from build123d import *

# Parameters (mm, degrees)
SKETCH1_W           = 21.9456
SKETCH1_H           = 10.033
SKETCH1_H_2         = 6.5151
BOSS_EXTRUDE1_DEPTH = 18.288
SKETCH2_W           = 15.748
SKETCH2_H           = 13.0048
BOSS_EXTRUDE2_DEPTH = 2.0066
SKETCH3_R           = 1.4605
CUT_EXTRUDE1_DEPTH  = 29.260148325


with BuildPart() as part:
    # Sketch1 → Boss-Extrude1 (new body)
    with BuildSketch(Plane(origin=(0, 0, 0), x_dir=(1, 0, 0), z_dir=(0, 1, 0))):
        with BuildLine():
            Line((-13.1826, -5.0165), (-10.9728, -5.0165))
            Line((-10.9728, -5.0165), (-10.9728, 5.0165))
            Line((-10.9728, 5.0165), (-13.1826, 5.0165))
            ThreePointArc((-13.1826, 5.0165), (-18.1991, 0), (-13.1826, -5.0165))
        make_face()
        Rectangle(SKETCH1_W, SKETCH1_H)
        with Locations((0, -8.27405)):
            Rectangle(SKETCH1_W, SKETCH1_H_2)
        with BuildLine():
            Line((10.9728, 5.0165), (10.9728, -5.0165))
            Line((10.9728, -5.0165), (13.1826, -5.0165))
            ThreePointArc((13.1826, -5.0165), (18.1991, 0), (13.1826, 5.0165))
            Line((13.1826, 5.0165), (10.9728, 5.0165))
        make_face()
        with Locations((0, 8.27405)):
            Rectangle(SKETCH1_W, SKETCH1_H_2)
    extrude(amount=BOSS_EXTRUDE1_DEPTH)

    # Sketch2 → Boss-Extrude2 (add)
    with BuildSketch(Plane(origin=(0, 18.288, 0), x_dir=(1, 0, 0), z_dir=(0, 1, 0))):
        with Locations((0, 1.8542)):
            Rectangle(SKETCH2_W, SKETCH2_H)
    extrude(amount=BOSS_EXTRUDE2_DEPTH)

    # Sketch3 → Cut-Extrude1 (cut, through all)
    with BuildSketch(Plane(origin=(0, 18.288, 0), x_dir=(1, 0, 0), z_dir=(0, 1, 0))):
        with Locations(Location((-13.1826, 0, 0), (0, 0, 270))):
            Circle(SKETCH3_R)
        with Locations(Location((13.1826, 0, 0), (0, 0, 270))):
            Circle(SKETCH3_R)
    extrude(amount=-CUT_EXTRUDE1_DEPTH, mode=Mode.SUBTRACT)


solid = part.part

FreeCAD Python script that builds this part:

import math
import FreeCAD as App
import Part
import Sketcher
from FreeCAD import Vector
Q = App.Units.Quantity

doc = App.newDocument("Part")
body = doc.addObject("PartDesign::Body", "Body")

# Sketch on XZ plane
sketch1 = body.newObject("Sketcher::SketchObject", "Sketch")
sketch1.AttachmentSupport = (doc.getObject("XZ_Plane"), [""])
sketch1.MapMode = "FlatFace"
sketch1.addGeometry([
    Part.LineSegment(Vector(-13.2, 5, 0), Vector(-11, 5, 0)),  # 0
    Part.LineSegment(Vector(-11, 5, 0), Vector(-11, 11.5, 0)),  # 1
    Part.LineSegment(Vector(-11, 11.5, 0), Vector(11, 11.5, 0)),  # 2
    Part.LineSegment(Vector(11, 11.5, 0), Vector(11, 5, 0)),  # 3
    Part.LineSegment(Vector(11, 5, 0), Vector(13.2, 5, 0)),  # 4
    Part.ArcOfCircle(Part.Circle(Vector(13.2, 0, 0), Vector(0, 0, 1), 5), math.radians(-90), math.radians(90)),  # 5
    Part.LineSegment(Vector(13.2, -5, 0), Vector(11, -5, 0)),  # 6
    Part.LineSegment(Vector(11, -5, 0), Vector(11, -11.5, 0)),  # 7
    Part.LineSegment(Vector(11, -11.5, 0), Vector(-11, -11.5, 0)),  # 8
    Part.LineSegment(Vector(-11, -11.5, 0), Vector(-11, -5, 0)),  # 9
    Part.LineSegment(Vector(-11, -5, 0), Vector(-13.2, -5, 0)),  # 10
    Part.ArcOfCircle(Part.Circle(Vector(-13.2, 0, 0), Vector(0, 0, 1), 5), math.radians(90), math.radians(270)),  # 11
], False)
sketch1.addConstraint([
    Sketcher.Constraint("Coincident", 0, 2, 1, 1),
    Sketcher.Constraint("Coincident", 1, 2, 2, 1),
    Sketcher.Constraint("Coincident", 2, 2, 3, 1),
    Sketcher.Constraint("Coincident", 3, 2, 4, 1),
    Sketcher.Constraint("Tangent", 4, 2, 5, 2),
    Sketcher.Constraint("Tangent", 5, 1, 6, 1),
    Sketcher.Constraint("Coincident", 6, 2, 7, 1),
    Sketcher.Constraint("Coincident", 7, 2, 8, 1),
    Sketcher.Constraint("Coincident", 8, 2, 9, 1),
    Sketcher.Constraint("Coincident", 9, 2, 10, 1),
    Sketcher.Constraint("Tangent", 10, 2, 11, 2),
    Sketcher.Constraint("Tangent", 11, 1, 0, 1),
    Sketcher.Constraint("Horizontal", 0),
    Sketcher.Constraint("Vertical", 1),
    Sketcher.Constraint("Horizontal", 2),
    Sketcher.Constraint("Vertical", 3),
    Sketcher.Constraint("Horizontal", 4),
    Sketcher.Constraint("Horizontal", 6),
    Sketcher.Constraint("Vertical", 7),
    Sketcher.Constraint("Horizontal", 8),
    Sketcher.Constraint("Vertical", 9),
    Sketcher.Constraint("Horizontal", 10),
    Sketcher.Constraint("Equal", 5, 11),
    Sketcher.Constraint("Symmetric", 5, 3, 11, 3, -1, 1),
    Sketcher.Constraint("Symmetric", 1, 2, 7, 2, -1, 1),
    Sketcher.Constraint("Symmetric", 0, 2, 3, 2, -2),
    Sketcher.Constraint("Vertical", 1, 2, 8, 2),
    Sketcher.Constraint("Radius", 5, Q("0.1975 in")),
    Sketcher.Constraint("DistanceX", 0, 1, 0, 2, Q("0.087 in")),
    Sketcher.Constraint("DistanceX", 2, 1, 2, 2, Q("0.864 in")),
    Sketcher.Constraint("DistanceY", 1, 1, 1, 2, Q("0.2565 in")),
])
pad1 = body.newObject("PartDesign::Pad", "Pad")
pad1.Profile = sketch1
pad1.Length = Q("0.72 in")
pad1.Reversed = True

# Sketch on XZ plane
sketch2 = body.newObject("Sketcher::SketchObject", "Sketch001")
sketch2.AttachmentSupport = (doc.getObject("XZ_Plane"), [""])
sketch2.MapMode = "FlatFace"
sketch2.AttachmentOffset = App.Placement(Vector(0, 0, -0.72 * 25.4), App.Rotation())
sketch2.addGeometry([
    Part.LineSegment(Vector(-8, -8, 0), Vector(-8, 5, 0)),
    Part.LineSegment(Vector(-8, 5, 0), Vector(8, 5, 0)),
    Part.LineSegment(Vector(8, 5, 0), Vector(8, -8, 0)),
    Part.LineSegment(Vector(8, -8, 0), Vector(-8, -8, 0)),
], False)
sketch2.addConstraint([
    Sketcher.Constraint("Coincident", 0, 2, 1, 1),
    Sketcher.Constraint("Coincident", 1, 2, 2, 1),
    Sketcher.Constraint("Coincident", 2, 2, 3, 1),
    Sketcher.Constraint("Coincident", 3, 2, 0, 1),
    Sketcher.Constraint("Vertical", 0),
    Sketcher.Constraint("Horizontal", 1),
    Sketcher.Constraint("Vertical", 2),
    Sketcher.Constraint("Horizontal", 3),
    Sketcher.Constraint("DistanceX", 1, 1, 1, 2, Q("0.62 in")),
    Sketcher.Constraint("DistanceY", 0, 1, 0, 2, Q("0.512 in")),
    Sketcher.Constraint("DistanceX", 0, 2, -1, 1, Q("0.31 in")),
    Sketcher.Constraint("DistanceY", -1, 1, 0, 2, Q("0.183 in")),
])
pad2 = body.newObject("PartDesign::Pad", "Pad001")
pad2.Profile = sketch2
pad2.Length = Q("0.079 in")
pad2.Reversed = True

# Sketch on XZ plane
sketch3 = body.newObject("Sketcher::SketchObject", "Sketch002")
sketch3.AttachmentSupport = (doc.getObject("XZ_Plane"), [""])
sketch3.MapMode = "FlatFace"
sketch3.AttachmentOffset = App.Placement(Vector(0, 0, -0.72 * 25.4), App.Rotation())
sketch3.addGeometry([
    Part.Circle(Vector(-13.2, 0, 0), Vector(0, 0, 1), 1.5),
    Part.Circle(Vector(13.2, 0, 0), Vector(0, 0, 1), 1.5),
], False)
sketch3.addConstraint([
    Sketcher.Constraint("Equal", 0, 1),
    Sketcher.Constraint("Symmetric", 0, 3, 1, 3, -1, 1),
    Sketcher.Constraint("PointOnObject", 0, 3, -1),
    Sketcher.Constraint("Diameter", 0, Q("0.115 in")),
    Sketcher.Constraint("DistanceX", 0, 3, -1, 1, Q("0.519 in")),
])
pocket1 = body.newObject("PartDesign::Pocket", "Pocket")
pocket1.Profile = sketch3
pocket1.Type = "ThroughAll"
pocket1.Reversed = True

doc.recompute()
